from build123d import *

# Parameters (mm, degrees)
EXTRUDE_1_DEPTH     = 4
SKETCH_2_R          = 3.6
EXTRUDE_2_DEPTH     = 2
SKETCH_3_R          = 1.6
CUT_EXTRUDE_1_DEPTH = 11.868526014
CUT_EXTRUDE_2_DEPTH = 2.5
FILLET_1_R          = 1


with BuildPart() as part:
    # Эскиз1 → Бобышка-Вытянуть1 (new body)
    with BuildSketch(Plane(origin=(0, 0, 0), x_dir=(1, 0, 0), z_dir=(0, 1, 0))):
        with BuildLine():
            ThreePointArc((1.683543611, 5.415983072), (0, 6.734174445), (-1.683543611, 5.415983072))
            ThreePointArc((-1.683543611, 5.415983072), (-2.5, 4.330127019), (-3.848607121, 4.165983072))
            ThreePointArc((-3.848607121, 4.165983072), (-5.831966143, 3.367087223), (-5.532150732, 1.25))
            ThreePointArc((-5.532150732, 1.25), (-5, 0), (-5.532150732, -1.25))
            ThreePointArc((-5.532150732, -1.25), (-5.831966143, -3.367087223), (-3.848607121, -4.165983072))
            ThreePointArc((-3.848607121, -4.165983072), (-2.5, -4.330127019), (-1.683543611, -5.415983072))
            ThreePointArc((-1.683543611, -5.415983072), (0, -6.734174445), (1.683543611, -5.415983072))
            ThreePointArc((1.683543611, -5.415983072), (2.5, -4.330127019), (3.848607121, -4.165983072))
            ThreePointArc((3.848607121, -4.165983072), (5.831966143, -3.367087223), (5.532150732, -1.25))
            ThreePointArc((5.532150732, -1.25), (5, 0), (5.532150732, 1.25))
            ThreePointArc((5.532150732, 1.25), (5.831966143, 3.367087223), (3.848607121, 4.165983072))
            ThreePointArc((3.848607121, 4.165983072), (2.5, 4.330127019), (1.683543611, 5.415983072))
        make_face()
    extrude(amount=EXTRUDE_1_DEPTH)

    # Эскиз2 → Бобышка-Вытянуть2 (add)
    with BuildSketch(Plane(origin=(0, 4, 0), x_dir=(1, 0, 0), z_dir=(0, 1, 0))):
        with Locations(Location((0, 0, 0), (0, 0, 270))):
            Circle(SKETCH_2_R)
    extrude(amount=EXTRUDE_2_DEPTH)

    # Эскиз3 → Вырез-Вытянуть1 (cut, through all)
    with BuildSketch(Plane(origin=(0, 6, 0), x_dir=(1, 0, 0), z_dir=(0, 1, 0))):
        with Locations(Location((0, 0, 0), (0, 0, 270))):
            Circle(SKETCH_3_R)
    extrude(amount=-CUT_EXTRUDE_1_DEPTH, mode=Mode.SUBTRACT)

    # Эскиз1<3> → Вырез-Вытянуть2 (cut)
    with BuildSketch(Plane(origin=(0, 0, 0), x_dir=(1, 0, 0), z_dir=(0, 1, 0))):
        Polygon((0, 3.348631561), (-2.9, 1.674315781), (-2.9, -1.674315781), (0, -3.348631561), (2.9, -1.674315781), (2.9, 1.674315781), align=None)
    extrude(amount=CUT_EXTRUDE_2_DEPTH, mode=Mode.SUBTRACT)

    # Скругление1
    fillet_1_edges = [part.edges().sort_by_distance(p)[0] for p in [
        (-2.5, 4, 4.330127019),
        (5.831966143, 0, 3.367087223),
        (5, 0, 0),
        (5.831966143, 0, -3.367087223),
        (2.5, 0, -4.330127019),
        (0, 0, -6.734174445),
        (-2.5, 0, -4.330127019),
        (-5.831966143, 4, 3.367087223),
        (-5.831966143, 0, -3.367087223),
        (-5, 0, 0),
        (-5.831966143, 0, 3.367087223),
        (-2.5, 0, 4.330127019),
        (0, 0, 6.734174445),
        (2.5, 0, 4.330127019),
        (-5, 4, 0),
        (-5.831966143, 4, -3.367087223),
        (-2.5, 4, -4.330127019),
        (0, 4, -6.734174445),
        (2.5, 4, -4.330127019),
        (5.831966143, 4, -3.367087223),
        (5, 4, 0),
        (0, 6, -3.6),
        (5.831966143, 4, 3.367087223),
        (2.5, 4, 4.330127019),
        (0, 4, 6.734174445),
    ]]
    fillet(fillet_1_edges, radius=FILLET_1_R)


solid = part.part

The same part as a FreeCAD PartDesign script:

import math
import FreeCAD as App
import Part
import Sketcher
Q = App.Units.Quantity


def edges_at(feature, points):
    """Names of the edges that pass closest to the given points."""
    edges = feature.Shape.Edges
    near = lambda p: min(range(len(edges)), key=lambda i: edges[i].distToShape(Part.Vertex(*p))[0])
    return sorted({f"Edge{near(p) + 1}" for p in points})


def add_polygon(sketch, points):
    """Adds a closed chain of lines whose ends are joined by coincident constraints."""
    first, n = sketch.GeometryCount, len(points)
    for a, b in zip(points, points[1:] + points[:1]):
        sketch.addGeometry(Part.LineSegment(App.Vector(*a, 0), App.Vector(*b, 0)), False)
    for i in range(n):
        sketch.addConstraint(Sketcher.Constraint("Coincident", first + i, 2, first + (i + 1) % n, 1))

doc = App.newDocument("Part")
body = doc.addObject("PartDesign::Body", "Body")

# Sketch on XZ plane
sketch1 = body.newObject("Sketcher::SketchObject", "Sketch")
sketch1.AttachmentSupport = (doc.getObject("XZ_Plane"), [""])
sketch1.MapMode = "FlatFace"
sketch1.addGeometry([
    Part.ArcOfCircle(Part.Circle(App.Vector(0, -5, 0), App.Vector(0, 0, 1), 1.734174), math.radians(-166.120906), math.radians(-13.879094)),  # 0
    Part.ArcOfCircle(Part.Circle(App.Vector(-3.367087, -5.831966, 0), App.Vector(0, 0, 1), 1.734174), math.radians(13.879094), math.radians(106.120906)),  # 1
    Part.ArcOfCircle(Part.Circle(App.Vector(-4.330127, -2.5, 0), App.Vector(0, 0, 1), 1.734174), math.radians(133.879094), math.radians(286.120906)),  # 2
    Part.ArcOfCircle(Part.Circle(App.Vector(-6.734174, 0, 0), App.Vector(0, 0, 1), 1.734174), math.radians(-46.120906), math.radians(46.120906)),  # 3
    Part.ArcOfCircle(Part.Circle(App.Vector(-4.330127, 2.5, 0), App.Vector(0, 0, 1), 1.734174), math.radians(73.879094), math.radians(226.120906)),  # 4
    Part.ArcOfCircle(Part.Circle(App.Vector(-3.367087, 5.831966, 0), App.Vector(0, 0, 1), 1.734174), math.radians(-106.120906), math.radians(-13.879094)),  # 5
    Part.ArcOfCircle(Part.Circle(App.Vector(0, 5, 0), App.Vector(0, 0, 1), 1.734174), math.radians(13.879094), math.radians(166.120906)),  # 6
    Part.ArcOfCircle(Part.Circle(App.Vector(3.367087, 5.831966, 0), App.Vector(0, 0, 1), 1.734174), math.radians(-166.120906), math.radians(-73.879094)),  # 7
    Part.ArcOfCircle(Part.Circle(App.Vector(4.330127, 2.5, 0), App.Vector(0, 0, 1), 1.734174), math.radians(-46.120906), math.radians(106.120906)),  # 8
    Part.ArcOfCircle(Part.Circle(App.Vector(6.734174, 0, 0), App.Vector(0, 0, 1), 1.734174), math.radians(133.879094), math.radians(226.120906)),  # 9
    Part.ArcOfCircle(Part.Circle(App.Vector(4.330127, -2.5, 0), App.Vector(0, 0, 1), 1.734174), math.radians(-106.120906), math.radians(46.120906)),  # 10
    Part.ArcOfCircle(Part.Circle(App.Vector(3.367087, -5.831966, 0), App.Vector(0, 0, 1), 1.734174), math.radians(73.879094), math.radians(166.120906)),  # 11
], False)
sketch1.addConstraint([
    Sketcher.Constraint("Tangent", 0, 1, 1, 1),
    Sketcher.Constraint("Tangent", 1, 2, 2, 2),
    Sketcher.Constraint("Tangent", 2, 1, 3, 1),
    Sketcher.Constraint("Tangent", 3, 2, 4, 2),
    Sketcher.Constraint("Tangent", 4, 1, 5, 1),
    Sketcher.Constraint("Tangent", 5, 2, 6, 2),
    Sketcher.Constraint("Tangent", 6, 1, 7, 1),
    Sketcher.Constraint("Tangent", 7, 2, 8, 2),
    Sketcher.Constraint("Tangent", 8, 1, 9, 1),
    Sketcher.Constraint("Tangent", 9, 2, 10, 2),
    Sketcher.Constraint("Tangent", 10, 1, 11, 1),
    Sketcher.Constraint("Tangent", 11, 2, 0, 2),
    Sketcher.Constraint("Equal", 0, 1),
    Sketcher.Constraint("Equal", 1, 2),
    Sketcher.Constraint("Equal", 2, 3),
    Sketcher.Constraint("Equal", 3, 4),
    Sketcher.Constraint("Equal", 4, 5),
    Sketcher.Constraint("Equal", 5, 6),
    Sketcher.Constraint("Equal", 6, 7),
    Sketcher.Constraint("Equal", 7, 8),
    Sketcher.Constraint("Equal", 8, 9),
    Sketcher.Constraint("Equal", 9, 10),
    Sketcher.Constraint("Equal", 10, 11),
    Sketcher.Constraint("Symmetric", 0, 3, 6, 3, -1, 1),
    Sketcher.Constraint("Symmetric", 2, 3, 8, 3, -1, 1),
    Sketcher.Constraint("Symmetric", 4, 3, 10, 3, -1, 1),
    Sketcher.Constraint("Symmetric", 5, 3, 7, 3, -2),
    Sketcher.Constraint("PointOnObject", 3, 3, -1),
    Sketcher.Constraint("DistanceY", 0, 3, -1, 1, 5.0),
    Sketcher.Constraint("DistanceY", 2, 3, 4, 3, 5.0),
    Sketcher.Constraint("Radius", 0, 1.734174),
    Sketcher.Constraint("DistanceX", 2, 3, 9, 3, 11.064301),
])
pad1 = body.newObject("PartDesign::Pad", "Pad")
pad1.Profile = sketch1
pad1.Length = 4
pad1.Reversed = True

# Sketch on XZ plane
sketch2 = body.newObject("Sketcher::SketchObject", "Sketch001")
sketch2.AttachmentSupport = (doc.getObject("XZ_Plane"), [""])
sketch2.MapMode = "FlatFace"
sketch2.AttachmentOffset = App.Placement(App.Vector(0, 0, -4), App.Rotation())
sketch2.addGeometry(Part.Circle(App.Vector(0, 0, 0), App.Vector(0, 0, 1), 3.6), False)
sketch2.addConstraint([
    Sketcher.Constraint("Coincident", 0, 3, -1, 1),
    Sketcher.Constraint("Diameter", 0, 7.2),
])
pad2 = body.newObject("PartDesign::Pad", "Pad001")
pad2.Profile = sketch2
pad2.Length = 2
pad2.Reversed = True

# Sketch on XZ plane
sketch3 = body.newObject("Sketcher::SketchObject", "Sketch002")
sketch3.AttachmentSupport = (doc.getObject("XZ_Plane"), [""])
sketch3.MapMode = "FlatFace"
sketch3.AttachmentOffset = App.Placement(App.Vector(0, 0, -6), App.Rotation())
sketch3.addGeometry(Part.Circle(App.Vector(0, 0, 0), App.Vector(0, 0, 1), 1.6), False)
sketch3.addConstraint([
    Sketcher.Constraint("Coincident", 0, 3, -1, 1),
    Sketcher.Constraint("Diameter", 0, 3.2),
])
pocket1 = body.newObject("PartDesign::Pocket", "Pocket")
pocket1.Profile = sketch3
pocket1.Type = "ThroughAll"
pocket1.Reversed = True

# Sketch on XZ plane
sketch4 = body.newObject("Sketcher::SketchObject", "Sketch003")
sketch4.AttachmentSupport = (doc.getObject("XZ_Plane"), [""])
sketch4.MapMode = "FlatFace"
add_polygon(sketch4, [(0, -3.348632), (-2.9, -1.674316), (-2.9, 1.674316), (0, 3.348632), (2.9, 1.674316), (2.9, -1.674316)])  # lines 0-5
sketch4.addConstraint([
    Sketcher.Constraint("Vertical", 1),
    Sketcher.Constraint("Vertical", 4),
    Sketcher.Constraint("Symmetric", 0, 2, 3, 2, -1, 1),
    Sketcher.Constraint("Symmetric", 2, 2, 5, 2, -1, 1),
    Sketcher.Constraint("PointOnObject", 2, 2, -2),
    Sketcher.Constraint("Parallel", 2, 5),
    Sketcher.Constraint("Horizontal", 1, 2, 3, 2),
    Sketcher.Constraint("Angle", 0, Q("150 deg")),
    Sketcher.Constraint("DistanceX", 0, 2, -1, 1, 2.9),
    Sketcher.Constraint("DistanceY", 1, 1, 1, 2, 3.348632),
])
pocket2 = body.newObject("PartDesign::Pocket", "Pocket001")
pocket2.Profile = sketch4
pocket2.Length = 2.5
doc.recompute()

fillet = body.newObject("PartDesign::Fillet", "Fillet")
fillet.Base = (pocket2, edges_at(pocket2, [
    (-2.5, 4, 4.33),
    (5.832, 0, 3.367),
    (5, 0, 0),
    (5.832, 0, -3.367),
    (2.5, 0, -4.33),
    (0, 0, -6.734),
    (-2.5, 0, -4.33),
    (-5.832, 4, 3.367),
    (-5.832, 0, -3.367),
    (-5, 0, 0),
    (-5.832, 0, 3.367),
    (-2.5, 0, 4.33),
    (0, 0, 6.734),
    (2.5, 0, 4.33),
    (-5, 4, 0),
    (-5.832, 4, -3.367),
    (-2.5, 4, -4.33),
    (0, 4, -6.734),
    (2.5, 4, -4.33),
    (5.832, 4, -3.367),
    (5, 4, 0),
    (0, 6, -3.6),
    (5.832, 4, 3.367),
    (2.5, 4, 4.33),
    (0, 4, 6.734),
]))
fillet.Radius = 1

doc.recompute()
